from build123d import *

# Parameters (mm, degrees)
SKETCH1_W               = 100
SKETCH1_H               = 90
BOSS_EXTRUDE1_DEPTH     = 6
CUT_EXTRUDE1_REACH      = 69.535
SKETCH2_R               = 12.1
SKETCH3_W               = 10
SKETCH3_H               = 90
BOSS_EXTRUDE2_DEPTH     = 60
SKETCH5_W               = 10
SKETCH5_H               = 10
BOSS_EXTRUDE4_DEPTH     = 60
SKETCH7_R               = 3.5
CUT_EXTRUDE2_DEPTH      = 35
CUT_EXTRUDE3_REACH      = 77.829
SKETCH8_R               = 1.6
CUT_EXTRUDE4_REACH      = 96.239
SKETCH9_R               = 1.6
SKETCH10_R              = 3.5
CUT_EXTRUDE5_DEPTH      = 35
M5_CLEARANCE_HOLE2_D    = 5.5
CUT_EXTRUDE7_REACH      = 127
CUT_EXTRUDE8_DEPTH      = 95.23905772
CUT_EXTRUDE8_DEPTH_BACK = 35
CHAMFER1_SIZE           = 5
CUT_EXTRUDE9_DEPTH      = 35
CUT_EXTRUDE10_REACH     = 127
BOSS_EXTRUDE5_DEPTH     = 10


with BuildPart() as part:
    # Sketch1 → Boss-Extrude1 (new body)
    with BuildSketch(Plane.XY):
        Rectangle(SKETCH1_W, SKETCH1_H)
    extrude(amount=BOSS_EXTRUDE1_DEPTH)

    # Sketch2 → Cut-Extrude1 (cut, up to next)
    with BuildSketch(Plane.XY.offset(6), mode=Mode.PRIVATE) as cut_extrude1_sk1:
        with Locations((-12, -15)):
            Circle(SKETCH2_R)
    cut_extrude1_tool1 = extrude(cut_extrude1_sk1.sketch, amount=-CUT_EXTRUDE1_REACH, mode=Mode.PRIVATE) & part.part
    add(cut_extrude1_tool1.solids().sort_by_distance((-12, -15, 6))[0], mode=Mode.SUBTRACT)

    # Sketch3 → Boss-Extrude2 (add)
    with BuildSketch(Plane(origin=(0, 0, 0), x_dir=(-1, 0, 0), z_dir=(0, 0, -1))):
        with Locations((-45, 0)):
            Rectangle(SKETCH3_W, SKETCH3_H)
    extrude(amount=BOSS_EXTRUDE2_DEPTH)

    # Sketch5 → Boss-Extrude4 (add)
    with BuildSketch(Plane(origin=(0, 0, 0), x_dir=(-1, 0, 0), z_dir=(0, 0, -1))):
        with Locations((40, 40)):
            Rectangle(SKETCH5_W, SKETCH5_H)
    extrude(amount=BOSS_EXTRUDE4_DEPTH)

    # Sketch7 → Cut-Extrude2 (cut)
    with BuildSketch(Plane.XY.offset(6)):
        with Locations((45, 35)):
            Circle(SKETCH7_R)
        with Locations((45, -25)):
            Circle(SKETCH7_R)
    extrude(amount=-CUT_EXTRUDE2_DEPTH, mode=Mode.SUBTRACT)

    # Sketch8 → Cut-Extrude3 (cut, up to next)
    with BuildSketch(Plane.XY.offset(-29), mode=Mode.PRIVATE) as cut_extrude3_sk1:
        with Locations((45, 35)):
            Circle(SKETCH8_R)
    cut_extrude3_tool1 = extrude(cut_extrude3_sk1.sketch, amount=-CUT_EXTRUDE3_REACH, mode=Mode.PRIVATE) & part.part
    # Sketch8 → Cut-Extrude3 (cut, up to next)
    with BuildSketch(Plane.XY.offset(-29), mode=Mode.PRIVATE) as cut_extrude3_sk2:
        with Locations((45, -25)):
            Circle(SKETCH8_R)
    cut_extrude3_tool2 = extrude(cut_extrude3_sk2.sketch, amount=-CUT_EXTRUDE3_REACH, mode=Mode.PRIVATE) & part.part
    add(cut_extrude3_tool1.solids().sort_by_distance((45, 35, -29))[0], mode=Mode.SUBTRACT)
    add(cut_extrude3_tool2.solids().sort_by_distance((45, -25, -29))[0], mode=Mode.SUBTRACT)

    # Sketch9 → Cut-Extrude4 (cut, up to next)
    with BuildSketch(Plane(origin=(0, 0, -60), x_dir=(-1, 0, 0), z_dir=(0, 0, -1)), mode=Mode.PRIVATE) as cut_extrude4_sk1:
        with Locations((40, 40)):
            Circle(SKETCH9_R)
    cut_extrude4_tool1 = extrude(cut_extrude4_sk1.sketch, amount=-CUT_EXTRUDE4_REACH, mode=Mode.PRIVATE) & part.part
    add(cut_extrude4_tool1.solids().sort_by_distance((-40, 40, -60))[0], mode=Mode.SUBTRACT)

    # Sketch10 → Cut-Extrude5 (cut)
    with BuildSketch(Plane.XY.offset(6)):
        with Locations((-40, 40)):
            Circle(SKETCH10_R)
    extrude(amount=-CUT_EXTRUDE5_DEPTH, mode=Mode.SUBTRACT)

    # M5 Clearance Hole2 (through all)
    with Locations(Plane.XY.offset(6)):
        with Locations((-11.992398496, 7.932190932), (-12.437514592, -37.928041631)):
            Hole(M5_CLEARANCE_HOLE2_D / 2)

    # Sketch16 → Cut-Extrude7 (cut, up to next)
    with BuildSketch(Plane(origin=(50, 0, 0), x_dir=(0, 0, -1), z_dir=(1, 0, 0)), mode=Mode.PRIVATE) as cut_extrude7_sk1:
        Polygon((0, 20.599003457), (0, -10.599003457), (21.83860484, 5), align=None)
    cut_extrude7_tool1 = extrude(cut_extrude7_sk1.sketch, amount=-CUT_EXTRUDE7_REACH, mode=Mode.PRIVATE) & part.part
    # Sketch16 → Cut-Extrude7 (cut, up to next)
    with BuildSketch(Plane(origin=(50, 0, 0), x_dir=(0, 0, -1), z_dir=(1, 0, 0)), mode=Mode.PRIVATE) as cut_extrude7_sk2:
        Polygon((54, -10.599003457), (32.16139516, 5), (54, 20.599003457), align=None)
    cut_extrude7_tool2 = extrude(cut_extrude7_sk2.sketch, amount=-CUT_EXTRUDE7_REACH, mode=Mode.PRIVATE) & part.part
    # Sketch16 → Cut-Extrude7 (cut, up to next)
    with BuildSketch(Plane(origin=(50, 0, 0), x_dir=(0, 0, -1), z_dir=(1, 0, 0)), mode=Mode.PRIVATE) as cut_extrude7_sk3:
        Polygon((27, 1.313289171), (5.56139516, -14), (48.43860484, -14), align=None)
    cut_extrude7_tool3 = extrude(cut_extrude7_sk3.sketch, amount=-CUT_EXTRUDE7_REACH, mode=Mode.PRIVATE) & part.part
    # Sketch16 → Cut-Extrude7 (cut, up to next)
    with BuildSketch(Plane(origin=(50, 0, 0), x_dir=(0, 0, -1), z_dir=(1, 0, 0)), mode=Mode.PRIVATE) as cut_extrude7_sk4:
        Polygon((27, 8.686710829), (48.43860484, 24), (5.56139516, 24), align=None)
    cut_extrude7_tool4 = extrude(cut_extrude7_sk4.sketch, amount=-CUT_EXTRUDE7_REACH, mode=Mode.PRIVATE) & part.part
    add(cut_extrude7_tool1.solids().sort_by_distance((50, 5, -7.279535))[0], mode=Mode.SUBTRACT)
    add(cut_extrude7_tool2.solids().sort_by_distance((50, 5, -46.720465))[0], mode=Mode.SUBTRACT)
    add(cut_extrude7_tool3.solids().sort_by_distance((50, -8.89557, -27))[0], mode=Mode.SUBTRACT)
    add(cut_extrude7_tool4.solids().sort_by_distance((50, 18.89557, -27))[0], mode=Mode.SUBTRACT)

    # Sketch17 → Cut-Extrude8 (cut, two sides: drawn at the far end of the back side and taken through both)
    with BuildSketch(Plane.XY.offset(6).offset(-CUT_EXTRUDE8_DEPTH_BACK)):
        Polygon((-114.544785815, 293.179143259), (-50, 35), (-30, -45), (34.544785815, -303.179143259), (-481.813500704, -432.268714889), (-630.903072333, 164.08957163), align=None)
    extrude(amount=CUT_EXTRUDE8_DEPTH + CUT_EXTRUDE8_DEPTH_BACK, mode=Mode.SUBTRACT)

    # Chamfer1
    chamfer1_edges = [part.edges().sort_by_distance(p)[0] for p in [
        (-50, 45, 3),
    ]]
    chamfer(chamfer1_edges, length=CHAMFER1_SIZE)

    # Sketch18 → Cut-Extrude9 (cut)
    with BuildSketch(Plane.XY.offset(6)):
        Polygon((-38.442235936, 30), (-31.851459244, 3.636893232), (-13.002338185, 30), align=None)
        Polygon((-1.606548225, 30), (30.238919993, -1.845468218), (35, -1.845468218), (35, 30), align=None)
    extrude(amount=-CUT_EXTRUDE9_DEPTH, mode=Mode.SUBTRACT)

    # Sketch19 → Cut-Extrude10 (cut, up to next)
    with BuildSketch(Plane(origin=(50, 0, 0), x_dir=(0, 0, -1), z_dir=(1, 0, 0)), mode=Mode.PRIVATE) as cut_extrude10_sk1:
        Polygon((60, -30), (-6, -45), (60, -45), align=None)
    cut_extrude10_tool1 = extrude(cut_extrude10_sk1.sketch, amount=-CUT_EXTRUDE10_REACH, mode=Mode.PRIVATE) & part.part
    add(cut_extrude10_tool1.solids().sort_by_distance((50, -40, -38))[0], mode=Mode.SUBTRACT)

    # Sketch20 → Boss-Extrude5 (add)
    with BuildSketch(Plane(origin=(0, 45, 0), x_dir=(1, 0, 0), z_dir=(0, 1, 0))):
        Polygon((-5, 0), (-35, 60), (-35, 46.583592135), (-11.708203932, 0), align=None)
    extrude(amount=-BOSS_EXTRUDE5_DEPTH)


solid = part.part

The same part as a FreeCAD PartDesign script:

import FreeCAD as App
import Part
import Sketcher
from FreeCAD import Vector
Q = App.Units.Quantity


def edges_at(feature, points):
    """Names of the edges that pass closest to the given points."""
    edges = feature.Shape.Edges
    near = lambda p: min(range(len(edges)), key=lambda i: edges[i].distToShape(Part.Vertex(*p))[0])
    return sorted({f"Edge{near(p) + 1}" for p in points})

doc = App.newDocument("Part")
body = doc.addObject("PartDesign::Body", "Body")

# Sketch on XY plane
sketch1 = body.newObject("Sketcher::SketchObject", "Sketch")
sketch1.AttachmentSupport = (doc.getObject("XY_Plane"), [""])
sketch1.MapMode = "FlatFace"
sketch1.addGeometry(Part.LineSegment(Vector(-50, 45, 0), Vector(-50, -45, 0)), False)
sketch1.addGeometry(Part.LineSegment(Vector(-50, -45, 0), Vector(50, -45, 0)), False)
sketch1.addGeometry(Part.LineSegment(Vector(50, -45, 0), Vector(50, 45, 0)), False)
sketch1.addGeometry(Part.LineSegment(Vector(50, 45, 0), Vector(-50, 45, 0)), False)
sketch1.addConstraint(Sketcher.Constraint("Coincident", 0, 2, 1, 1))
sketch1.addConstraint(Sketcher.Constraint("Coincident", 1, 2, 2, 1))
sketch1.addConstraint(Sketcher.Constraint("Coincident", 2, 2, 3, 1))
sketch1.addConstraint(Sketcher.Constraint("Coincident", 3, 2, 0, 1))
sketch1.addConstraint(Sketcher.Constraint("Vertical", 0))
sketch1.addConstraint(Sketcher.Constraint("Horizontal", 1))
sketch1.addConstraint(Sketcher.Constraint("Vertical", 2))
sketch1.addConstraint(Sketcher.Constraint("Horizontal", 3))
sketch1.addConstraint(Sketcher.Constraint("Symmetric", 0, 2, 2, 2, -1, 1))
sketch1.addConstraint(Sketcher.Constraint("DistanceX", 1, 1, 1, 2, Q("100 mm")))
sketch1.addConstraint(Sketcher.Constraint("DistanceY", 0, 2, 0, 1, Q("90 mm")))
pad1 = body.newObject("PartDesign::Pad", "Pad")
pad1.Profile = sketch1
pad1.Length = 6

# Sketch on XY plane
sketch2 = body.newObject("Sketcher::SketchObject", "Sketch001")
sketch2.AttachmentSupport = (doc.getObject("XY_Plane"), [""])
sketch2.MapMode = "FlatFace"
sketch2.AttachmentOffset = App.Placement(Vector(0, 0, 6), App.Rotation())
sketch2.addGeometry(Part.Circle(Vector(-12, -15, 0), Vector(0, 0, 1), 12), False)
sketch2.addConstraint(Sketcher.Constraint("Diameter", 0, Q("24.2 mm")))
sketch2.addConstraint(Sketcher.Constraint("DistanceX", 0, 3, -1, 1, Q("12 mm")))
sketch2.addConstraint(Sketcher.Constraint("DistanceY", 0, 3, -1, 1, Q("15 mm")))
pocket1 = body.newObject("PartDesign::Pocket", "Pocket")
pocket1.Profile = sketch2
pocket1.Type = "UpToFirst"

# Sketch on XY plane
sketch3 = body.newObject("Sketcher::SketchObject", "Sketch002")
sketch3.AttachmentSupport = (doc.getObject("XY_Plane"), [""])
sketch3.MapMode = "FlatFace"
sketch3.addGeometry(Part.LineSegment(Vector(50, 45, 0), Vector(50, -45, 0)), False)
sketch3.addGeometry(Part.LineSegment(Vector(50, -45, 0), Vector(40, -45, 0)), False)
sketch3.addGeometry(Part.LineSegment(Vector(40, -45, 0), Vector(40, 45, 0)), False)
sketch3.addGeometry(Part.LineSegment(Vector(40, 45, 0), Vector(50, 45, 0)), False)
sketch3.addConstraint(Sketcher.Constraint("Coincident", 0, 2, 1, 1))
sketch3.addConstraint(Sketcher.Constraint("Coincident", 1, 2, 2, 1))
sketch3.addConstraint(Sketcher.Constraint("Coincident", 2, 2, 3, 1))
sketch3.addConstraint(Sketcher.Constraint("Coincident", 3, 2, 0, 1))
sketch3.addConstraint(Sketcher.Constraint("Vertical", 0))
sketch3.addConstraint(Sketcher.Constraint("Horizontal", 1))
sketch3.addConstraint(Sketcher.Constraint("Vertical", 2))
sketch3.addConstraint(Sketcher.Constraint("Horizontal", 3))
sketch3.addConstraint(Sketcher.Constraint("DistanceX", 1, 2, 1, 1, Q("10 mm")))
sketch3.addConstraint(Sketcher.Constraint("DistanceY", 0, 2, 0, 1, Q("90 mm")))
sketch3.addConstraint(Sketcher.Constraint("DistanceX", -1, 1, 0, 2, Q("50 mm")))
sketch3.addConstraint(Sketcher.Constraint("DistanceY", 0, 2, -1, 1, Q("45 mm")))
pad2 = body.newObject("PartDesign::Pad", "Pad001")
pad2.Profile = sketch3
pad2.Length = 60
pad2.Reversed = True

# Sketch on XY plane
sketch4 = body.newObject("Sketcher::SketchObject", "Sketch003")
sketch4.AttachmentSupport = (doc.getObject("XY_Plane"), [""])
sketch4.MapMode = "FlatFace"
sketch4.addGeometry(Part.LineSegment(Vector(-35, 45, 0), Vector(-35, 35, 0)), False)
sketch4.addGeometry(Part.LineSegment(Vector(-35, 35, 0), Vector(-45, 35, 0)), False)
sketch4.addGeometry(Part.LineSegment(Vector(-45, 35, 0), Vector(-45, 45, 0)), False)
sketch4.addGeometry(Part.LineSegment(Vector(-45, 45, 0), Vector(-35, 45, 0)), False)
sketch4.addConstraint(Sketcher.Constraint("Coincident", 0, 2, 1, 1))
sketch4.addConstraint(Sketcher.Constraint("Coincident", 1, 2, 2, 1))
sketch4.addConstraint(Sketcher.Constraint("Coincident", 2, 2, 3, 1))
sketch4.addConstraint(Sketcher.Constraint("Coincident", 3, 2, 0, 1))
sketch4.addConstraint(Sketcher.Constraint("Vertical", 0))
sketch4.addConstraint(Sketcher.Constraint("Horizontal", 1))
sketch4.addConstraint(Sketcher.Constraint("Vertical", 2))
sketch4.addConstraint(Sketcher.Constraint("Horizontal", 3))
sketch4.addConstraint(Sketcher.Constraint("Equal", 3, 0))
sketch4.addConstraint(Sketcher.Constraint("DistanceX", 1, 2, 1, 1, Q("10 mm")))
sketch4.addConstraint(Sketcher.Constraint("DistanceX", 0, 2, -1, 1, Q("35 mm")))
sketch4.addConstraint(Sketcher.Constraint("DistanceY", -1, 1, 0, 2, Q("35 mm")))
pad3 = body.newObject("PartDesign::Pad", "Pad002")
pad3.Profile = sketch4
pad3.Length = 60
pad3.Reversed = True

# Sketch on XY plane
sketch5 = body.newObject("Sketcher::SketchObject", "Sketch004")
sketch5.AttachmentSupport = (doc.getObject("XY_Plane"), [""])
sketch5.MapMode = "FlatFace"
sketch5.AttachmentOffset = App.Placement(Vector(0, 0, 6), App.Rotation())
sketch5.addGeometry(Part.Circle(Vector(45, 35, 0), Vector(0, 0, 1), 3.5), False)
sketch5.addGeometry(Part.Circle(Vector(45, -25, 0), Vector(0, 0, 1), 3.5), False)
sketch5.addConstraint(Sketcher.Constraint("Equal", 0, 1))
sketch5.addConstraint(Sketcher.Constraint("Vertical", 0, 3, 1, 3))
sketch5.addConstraint(Sketcher.Constraint("Diameter", 0, Q("7 mm")))
sketch5.addConstraint(Sketcher.Constraint("DistanceX", -1, 1, 0, 3, Q("45 mm")))
sketch5.addConstraint(Sketcher.Constraint("DistanceY", -1, 1, 0, 3, Q("35 mm")))
sketch5.addConstraint(Sketcher.Constraint("DistanceY", 1, 3, -1, 1, Q("25 mm")))
pocket2 = body.newObject("PartDesign::Pocket", "Pocket001")
pocket2.Profile = sketch5
pocket2.Length = 35

# Sketch on XY plane
sketch6 = body.newObject("Sketcher::SketchObject", "Sketch005")
sketch6.AttachmentSupport = (doc.getObject("XY_Plane"), [""])
sketch6.MapMode = "FlatFace"
sketch6.AttachmentOffset = App.Placement(Vector(0, 0, -29), App.Rotation())
sketch6.addGeometry(Part.Circle(Vector(45, 35, 0), Vector(0, 0, 1), 1.6), False)
sketch6.addConstraint(Sketcher.Constraint("Diameter", 0, Q("3.2 mm")))
sketch6.addConstraint(Sketcher.Constraint("DistanceX", -1, 1, 0, 3, Q("45 mm")))
sketch6.addConstraint(Sketcher.Constraint("DistanceY", -1, 1, 0, 3, Q("35 mm")))
pocket3 = body.newObject("PartDesign::Pocket", "Pocket002")
pocket3.Profile = sketch6
pocket3.Type = "UpToFirst"

# Sketch on XY plane
sketch7 = body.newObject("Sketcher::SketchObject", "Sketch006")
sketch7.AttachmentSupport = (doc.getObject("XY_Plane"), [""])
sketch7.MapMode = "FlatFace"
sketch7.AttachmentOffset = App.Placement(Vector(0, 0, -29), App.Rotation())
sketch7.addGeometry(Part.Circle(Vector(45, -25, 0), Vector(0, 0, 1), 1.6), False)
sketch7.addConstraint(Sketcher.Constraint("Diameter", 0, Q("3.2 mm")))
sketch7.addConstraint(Sketcher.Constraint("DistanceX", -1, 1, 0, 3, Q("45 mm")))
sketch7.addConstraint(Sketcher.Constraint("DistanceY", 0, 3, -1, 1, Q("25 mm")))
pocket4 = body.newObject("PartDesign::Pocket", "Pocket003")
pocket4.Profile = sketch7
pocket4.Type = "UpToFirst"

# Sketch on XY plane
sketch8 = body.newObject("Sketcher::SketchObject", "Sketch007")
sketch8.AttachmentSupport = (doc.getObject("XY_Plane"), [""])
sketch8.MapMode = "FlatFace"
sketch8.AttachmentOffset = App.Placement(Vector(0, 0, -60), App.Rotation())
sketch8.addGeometry(Part.Circle(Vector(-40, 40, 0), Vector(0, 0, 1), 1.6), False)
sketch8.addConstraint(Sketcher.Constraint("Diameter", 0, Q("3.2 mm")))
sketch8.addConstraint(Sketcher.Constraint("DistanceX", 0, 3, -1, 1, Q("40 mm")))
sketch8.addConstraint(Sketcher.Constraint("DistanceY", -1, 1, 0, 3, Q("40 mm")))
pocket5 = body.newObject("PartDesign::Pocket", "Pocket004")
pocket5.Profile = sketch8
pocket5.Type = "UpToFirst"
pocket5.Reversed = True

# Sketch on XY plane
sketch9 = body.newObject("Sketcher::SketchObject", "Sketch008")
sketch9.AttachmentSupport = (doc.getObject("XY_Plane"), [""])
sketch9.MapMode = "FlatFace"
sketch9.AttachmentOffset = App.Placement(Vector(0, 0, 6), App.Rotation())
sketch9.addGeometry(Part.Circle(Vector(-40, 40, 0), Vector(0, 0, 1), 3.5), False)
sketch9.addConstraint(Sketcher.Constraint("Diameter", 0, Q("7 mm")))
sketch9.addConstraint(Sketcher.Constraint("DistanceX", 0, 3, -1, 1, Q("40 mm")))
sketch9.addConstraint(Sketcher.Constraint("DistanceY", -1, 1, 0, 3, Q("40 mm")))
pocket6 = body.newObject("PartDesign::Pocket", "Pocket005")
pocket6.Profile = sketch9
pocket6.Length = 35

# Sketch on XY plane
sketch10 = body.newObject("Sketcher::SketchObject", "Sketch009")
sketch10.AttachmentSupport = (doc.getObject("XY_Plane"), [""])
sketch10.MapMode = "FlatFace"
sketch10.AttachmentOffset = App.Placement(Vector(0, 0, 6), App.Rotation())
sketch10.addGeometry(Part.Circle(Vector(-12, 7.9, 0), Vector(0, 0, 1), 2.8), False)
sketch10.addGeometry(Part.Circle(Vector(-12.4, -37.9, 0), Vector(0, 0, 1), 2.8), False)
sketch10.addConstraint(Sketcher.Constraint("Equal", 0, 1))
sketch10.addConstraint(Sketcher.Constraint("Diameter", 0, Q("5.5 mm")))
sketch10.addConstraint(Sketcher.Constraint("DistanceX", 0, 3, -1, 1, Q("11.992398 mm")))
sketch10.addConstraint(Sketcher.Constraint("DistanceY", -1, 1, 0, 3, Q("7.932191 mm")))
sketch10.addConstraint(Sketcher.Constraint("DistanceY", 1, 3, -1, 1, Q("37.928042 mm")))
sketch10.addConstraint(Sketcher.Constraint("DistanceX", 1, 3, -1, 1, Q("12.437515 mm")))
doc.recompute()
hole = body.newObject("PartDesign::Hole", "Hole")
hole.Profile = sketch10
hole.ThreadType = "None"
hole.Diameter = 5.5
hole.DepthType = "ThroughAll"

# Sketch on YZ plane
sketch11 = body.newObject("Sketcher::SketchObject", "Sketch010")
sketch11.AttachmentSupport = (doc.getObject("YZ_Plane"), [""])
sketch11.MapMode = "FlatFace"
sketch11.AttachmentOffset = App.Placement(Vector(0, 0, 50), App.Rotation())
sketch11.addGeometry(Part.LineSegment(Vector(21, 0, 0), Vector(-11, 0, 0)), False)
sketch11.addGeometry(Part.LineSegment(Vector(-11, 0, 0), Vector(5, -22, 0)), False)
sketch11.addGeometry(Part.LineSegment(Vector(5, -22, 0), Vector(21, 0, 0)), False)
sketch11.addConstraint(Sketcher.Constraint("Coincident", 0, 2, 1, 1))
sketch11.addConstraint(Sketcher.Constraint("Coincident", 1, 2, 2, 1))
sketch11.addConstraint(Sketcher.Constraint("Coincident", 2, 2, 0, 1))
sketch11.addConstraint(Sketcher.Constraint("Horizontal", 0))
sketch11.addConstraint(Sketcher.Constraint("PointOnObject", 0, 2, -1))
sketch11.addConstraint(Sketcher.Constraint("Equal", 1, 2))
sketch11.addConstraint(Sketcher.Constraint("DistanceX", -1, 1, 1, 2, Q("5 mm")))
sketch11.addConstraint(Sketcher.Constraint("Distance", 1, Q("26.83754 mm")))
sketch11.addConstraint(Sketcher.Constraint("DistanceX", 0, 2, 0, 1, Q("31.198007 mm")))
pocket7 = body.newObject("PartDesign::Pocket", "Pocket006")
pocket7.Profile = sketch11
pocket7.Type = "UpToFirst"

# Sketch on YZ plane
sketch12 = body.newObject("Sketcher::SketchObject", "Sketch011")
sketch12.AttachmentSupport = (doc.getObject("YZ_Plane"), [""])
sketch12.MapMode = "FlatFace"
sketch12.AttachmentOffset = App.Placement(Vector(0, 0, 50), App.Rotation())
sketch12.addGeometry(Part.LineSegment(Vector(5, -32, 0), Vector(-11, -54, 0)), False)
sketch12.addGeometry(Part.LineSegment(Vector(-11, -54, 0), Vector(21, -54, 0)), False)
sketch12.addGeometry(Part.LineSegment(Vector(21, -54, 0), Vector(5, -32, 0)), False)
sketch12.addConstraint(Sketcher.Constraint("Coincident", 0, 2, 1, 1))
sketch12.addConstraint(Sketcher.Constraint("Coincident", 1, 2, 2, 1))
sketch12.addConstraint(Sketcher.Constraint("Coincident", 2, 2, 0, 1))
sketch12.addConstraint(Sketcher.Constraint("Horizontal", 1))
sketch12.addConstraint(Sketcher.Constraint("Equal", 0, 2))
sketch12.addConstraint(Sketcher.Constraint("DistanceY", 0, 2, -1, 1, Q("54 mm")))
sketch12.addConstraint(Sketcher.Constraint("DistanceX", -1, 1, 2, 2, Q("5 mm")))
sketch12.addConstraint(Sketcher.Constraint("Distance", 0, Q("26.83754 mm")))
sketch12.addConstraint(Sketcher.Constraint("DistanceX", 1, 1, 1, 2, Q("31.198007 mm")))
pocket8 = body.newObject("PartDesign::Pocket", "Pocket007")
pocket8.Profile = sketch12
pocket8.Type = "UpToFirst"

# Sketch on YZ plane
sketch13 = body.newObject("Sketcher::SketchObject", "Sketch012")
sketch13.AttachmentSupport = (doc.getObject("YZ_Plane"), [""])
sketch13.MapMode = "FlatFace"
sketch13.AttachmentOffset = App.Placement(Vector(0, 0, 50), App.Rotation())
sketch13.addGeometry(Part.LineSegment(Vector(1, -27, 0), Vector(-14, -6, 0)), False)
sketch13.addGeometry(Part.LineSegment(Vector(-14, -6, 0), Vector(-14, -48, 0)), False)
sketch13.addGeometry(Part.LineSegment(Vector(-14, -48, 0), Vector(1, -27, 0)), False)
sketch13.addConstraint(Sketcher.Constraint("Coincident", 0, 2, 1, 1))
sketch13.addConstraint(Sketcher.Constraint("Coincident", 1, 2, 2, 1))
sketch13.addConstraint(Sketcher.Constraint("Coincident", 2, 2, 0, 1))
sketch13.addConstraint(Sketcher.Constraint("Vertical", 1))
sketch13.addConstraint(Sketcher.Constraint("Equal", 0, 2))
sketch13.addConstraint(Sketcher.Constraint("DistanceX", 0, 2, -1, 1, Q("14 mm")))
sketch13.addConstraint(Sketcher.Constraint("DistanceY", 2, 2, -1, 1, Q("27 mm")))
sketch13.addConstraint(Sketcher.Constraint("DistanceY", 1, 2, 1, 1, Q("42.87721 mm")))
sketch13.addConstraint(Sketcher.Constraint("Distance", 0, Q("26.345979 mm")))
pocket9 = body.newObject("PartDesign::Pocket", "Pocket008")
pocket9.Profile = sketch13
pocket9.Type = "UpToFirst"

# Sketch on YZ plane
sketch14 = body.newObject("Sketcher::SketchObject", "Sketch013")
sketch14.AttachmentSupport = (doc.getObject("YZ_Plane"), [""])
sketch14.MapMode = "FlatFace"
sketch14.AttachmentOffset = App.Placement(Vector(0, 0, 50), App.Rotation())
sketch14.addGeometry(Part.LineSegment(Vector(9, -27, 0), Vector(24, -48, 0)), False)
sketch14.addGeometry(Part.LineSegment(Vector(24, -48, 0), Vector(24, -6, 0)), False)
sketch14.addGeometry(Part.LineSegment(Vector(24, -6, 0), Vector(9, -27, 0)), False)
sketch14.addConstraint(Sketcher.Constraint("Coincident", 0, 2, 1, 1))
sketch14.addConstraint(Sketcher.Constraint("Coincident", 1, 2, 2, 1))
sketch14.addConstraint(Sketcher.Constraint("Coincident", 2, 2, 0, 1))
sketch14.addConstraint(Sketcher.Constraint("Vertical", 1))
sketch14.addConstraint(Sketcher.Constraint("Equal", 0, 2))
sketch14.addConstraint(Sketcher.Constraint("DistanceX", -1, 1, 0, 2, Q("24 mm")))
sketch14.addConstraint(Sketcher.Constraint("DistanceY", 2, 2, -1, 1, Q("27 mm")))
sketch14.addConstraint(Sketcher.Constraint("DistanceY", 1, 1, 1, 2, Q("42.87721 mm")))
sketch14.addConstraint(Sketcher.Constraint("Distance", 0, Q("26.345979 mm")))
pocket10 = body.newObject("PartDesign::Pocket", "Pocket009")
pocket10.Profile = sketch14
pocket10.Type = "UpToFirst"

# Sketch on XY plane
sketch15 = body.newObject("Sketcher::SketchObject", "Sketch014")
sketch15.AttachmentSupport = (doc.getObject("XY_Plane"), [""])
sketch15.MapMode = "FlatFace"
sketch15.AttachmentOffset = App.Placement(Vector(0, 0, 6), App.Rotation())
sketch15.addGeometry(Part.LineSegment(Vector(35, -303, 0), Vector(-115, 293, 0)), False)
sketch15.addGeometry(Part.LineSegment(Vector(-115, 293, 0), Vector(-631, 164, 0)), False)
sketch15.addGeometry(Part.LineSegment(Vector(-631, 164, 0), Vector(-482, -432, 0)), False)
sketch15.addGeometry(Part.LineSegment(Vector(-482, -432, 0), Vector(35, -303, 0)), False)
sketch15.addConstraint(Sketcher.Constraint("Coincident", 0, 2, 1, 1))
sketch15.addConstraint(Sketcher.Constraint("Coincident", 1, 2, 2, 1))
sketch15.addConstraint(Sketcher.Constraint("Coincident", 2, 2, 3, 1))
sketch15.addConstraint(Sketcher.Constraint("Coincident", 3, 2, 0, 1))
sketch15.addConstraint(Sketcher.Constraint("Perpendicular", 0, 1))
sketch15.addConstraint(Sketcher.Constraint("Perpendicular", 1, 2))
sketch15.addConstraint(Sketcher.Constraint("Perpendicular", 2, 3))
sketch15.addConstraint(Sketcher.Constraint("DistanceX", 2, 2, -1, 1, Q("481.813501 mm")))
sketch15.addConstraint(Sketcher.Constraint("Distance", 0, Q("614.712052 mm")))
sketch15.addConstraint(Sketcher.Constraint("Distance", 1, Q("532.249939 mm")))
sketch15.addConstraint(Sketcher.Constraint("DistanceY", -1, 1, 1, 2, Q("164.089572 mm")))
sketch15.addConstraint(Sketcher.Constraint("DistanceY", 1, 2, 0, 2, Q("129.089572 mm")))
pocket11 = body.newObject("PartDesign::Pocket", "Pocket010")
pocket11.Profile = sketch15
pocket11.Type = "ThroughAll"
pocket11.Midplane = True
doc.recompute()

chamfer = body.newObject("PartDesign::Chamfer", "Chamfer")
chamfer.Base = (pocket11, edges_at(pocket11, [(-50, 45, 3)]))
chamfer.Size = 5

# Sketch on XY plane
sketch16 = body.newObject("Sketcher::SketchObject", "Sketch015")
sketch16.AttachmentSupport = (doc.getObject("XY_Plane"), [""])
sketch16.MapMode = "FlatFace"
sketch16.AttachmentOffset = App.Placement(Vector(0, 0, 6), App.Rotation())
sketch16.addGeometry(Part.LineSegment(Vector(-38.4, 30, 0), Vector(-31.9, 3.6, 0)), False)
sketch16.addGeometry(Part.LineSegment(Vector(-31.9, 3.6, 0), Vector(-13, 30, 0)), False)
sketch16.addGeometry(Part.LineSegment(Vector(-13, 30, 0), Vector(-38.4, 30, 0)), False)
sketch16.addGeometry(Part.LineSegment(Vector(-1.6, 30, 0), Vector(30.2, -1.8, 0)), False)
sketch16.addGeometry(Part.LineSegment(Vector(30.2, -1.8, 0), Vector(35, -1.8, 0)), False)
sketch16.addGeometry(Part.LineSegment(Vector(35, -1.8, 0), Vector(35, 30, 0)), False)
sketch16.addGeometry(Part.LineSegment(Vector(35, 30, 0), Vector(-1.6, 30, 0)), False)
sketch16.addConstraint(Sketcher.Constraint("Coincident", 0, 2, 1, 1))
sketch16.addConstraint(Sketcher.Constraint("Coincident", 1, 2, 2, 1))
sketch16.addConstraint(Sketcher.Constraint("Coincident", 2, 2, 0, 1))
sketch16.addConstraint(Sketcher.Constraint("Coincident", 3, 2, 4, 1))
sketch16.addConstraint(Sketcher.Constraint("Coincident", 4, 2, 5, 1))
sketch16.addConstraint(Sketcher.Constraint("Coincident", 5, 2, 6, 1))
sketch16.addConstraint(Sketcher.Constraint("Coincident", 6, 2, 3, 1))
sketch16.addConstraint(Sketcher.Constraint("Horizontal", 2))
sketch16.addConstraint(Sketcher.Constraint("Horizontal", 4))
sketch16.addConstraint(Sketcher.Constraint("Vertical", 5))
sketch16.addConstraint(Sketcher.Constraint("Horizontal", 6))
sketch16.addConstraint(Sketcher.Constraint("Horizontal", 2, 2, 5, 2))
sketch16.addConstraint(Sketcher.Constraint("Angle", 3, Q("-45 deg")))
sketch16.addConstraint(Sketcher.Constraint("DistanceY", -1, 1, 1, 2, Q("30 mm")))
sketch16.addConstraint(Sketcher.Constraint("DistanceX", -1, 1, 4, 2, Q("35 mm")))
sketch16.addConstraint(Sketcher.Constraint("DistanceX", 4, 1, 4, 2, Q("4.76108 mm")))
sketch16.addConstraint(Sketcher.Constraint("DistanceX", 6, 2, 6, 1, Q("36.606548 mm")))
sketch16.addConstraint(Sketcher.Constraint("Distance", 0, Q("27.174468 mm")))
sketch16.addConstraint(Sketcher.Constraint("DistanceX", 2, 2, 2, 1, Q("25.439898 mm")))
sketch16.addConstraint(Sketcher.Constraint("DistanceX", 0, 2, -1, 1, Q("31.851459 mm")))
sketch16.addConstraint(Sketcher.Constraint("DistanceX", 1, 2, -1, 1, Q("13.002338 mm")))
pocket12 = body.newObject("PartDesign::Pocket", "Pocket011")
pocket12.Profile = sketch16
pocket12.Length = 35

# Sketch on YZ plane
sketch17 = body.newObject("Sketcher::SketchObject", "Sketch016")
sketch17.AttachmentSupport = (doc.getObject("YZ_Plane"), [""])
sketch17.MapMode = "FlatFace"
sketch17.AttachmentOffset = App.Placement(Vector(0, 0, 50), App.Rotation())
sketch17.addGeometry(Part.LineSegment(Vector(-30, -60, 0), Vector(-45, 6, 0)), False)
sketch17.addGeometry(Part.LineSegment(Vector(-45, 6, 0), Vector(-45, -60, 0)), False)
sketch17.addGeometry(Part.LineSegment(Vector(-45, -60, 0), Vector(-30, -60, 0)), False)
sketch17.addConstraint(Sketcher.Constraint("Coincident", 0, 2, 1, 1))
sketch17.addConstraint(Sketcher.Constraint("Coincident", 1, 2, 2, 1))
sketch17.addConstraint(Sketcher.Constraint("Coincident", 2, 2, 0, 1))
sketch17.addConstraint(Sketcher.Constraint("Vertical", 1))
sketch17.addConstraint(Sketcher.Constraint("Horizontal", 2))
sketch17.addConstraint(Sketcher.Constraint("DistanceX", 2, 1, 2, 2, Q("15 mm")))
sketch17.addConstraint(Sketcher.Constraint("DistanceY", 1, 2, 1, 1, Q("66 mm")))
sketch17.addConstraint(Sketcher.Constraint("DistanceX", 0, 2, -1, 1, Q("45 mm")))
sketch17.addConstraint(Sketcher.Constraint("DistanceY", -1, 1, 0, 2, Q("6 mm")))
pocket13 = body.newObject("PartDesign::Pocket", "Pocket012")
pocket13.Profile = sketch17
pocket13.Length = 80.340909

# Sketch on XZ plane
sketch18 = body.newObject("Sketcher::SketchObject", "Sketch017")
sketch18.AttachmentSupport = (doc.getObject("XZ_Plane"), [""])
sketch18.MapMode = "FlatFace"
sketch18.AttachmentOffset = App.Placement(Vector(0, 0, -45), App.Rotation())
sketch18.addGeometry(Part.LineSegment(Vector(-5, 0, 0), Vector(-35, -60, 0)), False)
sketch18.addGeometry(Part.LineSegment(Vector(-35, -60, 0), Vector(-35, -47, 0)), False)
sketch18.addGeometry(Part.LineSegment(Vector(-35, -47, 0), Vector(-12, 0, 0)), False)
sketch18.addGeometry(Part.LineSegment(Vector(-12, 0, 0), Vector(-5, 0, 0)), False)
sketch18.addConstraint(Sketcher.Constraint("Coincident", 0, 2, 1, 1))
sketch18.addConstraint(Sketcher.Constraint("Coincident", 1, 2, 2, 1))
sketch18.addConstraint(Sketcher.Constraint("Coincident", 2, 2, 3, 1))
sketch18.addConstraint(Sketcher.Constraint("Coincident", 3, 2, 0, 1))
sketch18.addConstraint(Sketcher.Constraint("Vertical", 1))
sketch18.addConstraint(Sketcher.Constraint("Horizontal", 3))
sketch18.addConstraint(Sketcher.Constraint("PointOnObject", 2, 2, -1))
sketch18.addConstraint(Sketcher.Constraint("Parallel", 0, 2))
sketch18.addConstraint(Sketcher.Constraint("DistanceX", 0, 2, -1, 1, Q("35 mm")))
sketch18.addConstraint(Sketcher.Constraint("DistanceY", 0, 2, -1, 1, Q("60 mm")))
sketch18.addConstraint(Sketcher.Constraint("DistanceX", 3, 2, -1, 1, Q("5 mm")))
sketch18.addConstraint(Sketcher.Constraint("Distance", 2, Q("52.082039 mm")))
pad4 = body.newObject("PartDesign::Pad", "Pad003")
pad4.Profile = sketch18
pad4.Length = 10

doc.recompute()
